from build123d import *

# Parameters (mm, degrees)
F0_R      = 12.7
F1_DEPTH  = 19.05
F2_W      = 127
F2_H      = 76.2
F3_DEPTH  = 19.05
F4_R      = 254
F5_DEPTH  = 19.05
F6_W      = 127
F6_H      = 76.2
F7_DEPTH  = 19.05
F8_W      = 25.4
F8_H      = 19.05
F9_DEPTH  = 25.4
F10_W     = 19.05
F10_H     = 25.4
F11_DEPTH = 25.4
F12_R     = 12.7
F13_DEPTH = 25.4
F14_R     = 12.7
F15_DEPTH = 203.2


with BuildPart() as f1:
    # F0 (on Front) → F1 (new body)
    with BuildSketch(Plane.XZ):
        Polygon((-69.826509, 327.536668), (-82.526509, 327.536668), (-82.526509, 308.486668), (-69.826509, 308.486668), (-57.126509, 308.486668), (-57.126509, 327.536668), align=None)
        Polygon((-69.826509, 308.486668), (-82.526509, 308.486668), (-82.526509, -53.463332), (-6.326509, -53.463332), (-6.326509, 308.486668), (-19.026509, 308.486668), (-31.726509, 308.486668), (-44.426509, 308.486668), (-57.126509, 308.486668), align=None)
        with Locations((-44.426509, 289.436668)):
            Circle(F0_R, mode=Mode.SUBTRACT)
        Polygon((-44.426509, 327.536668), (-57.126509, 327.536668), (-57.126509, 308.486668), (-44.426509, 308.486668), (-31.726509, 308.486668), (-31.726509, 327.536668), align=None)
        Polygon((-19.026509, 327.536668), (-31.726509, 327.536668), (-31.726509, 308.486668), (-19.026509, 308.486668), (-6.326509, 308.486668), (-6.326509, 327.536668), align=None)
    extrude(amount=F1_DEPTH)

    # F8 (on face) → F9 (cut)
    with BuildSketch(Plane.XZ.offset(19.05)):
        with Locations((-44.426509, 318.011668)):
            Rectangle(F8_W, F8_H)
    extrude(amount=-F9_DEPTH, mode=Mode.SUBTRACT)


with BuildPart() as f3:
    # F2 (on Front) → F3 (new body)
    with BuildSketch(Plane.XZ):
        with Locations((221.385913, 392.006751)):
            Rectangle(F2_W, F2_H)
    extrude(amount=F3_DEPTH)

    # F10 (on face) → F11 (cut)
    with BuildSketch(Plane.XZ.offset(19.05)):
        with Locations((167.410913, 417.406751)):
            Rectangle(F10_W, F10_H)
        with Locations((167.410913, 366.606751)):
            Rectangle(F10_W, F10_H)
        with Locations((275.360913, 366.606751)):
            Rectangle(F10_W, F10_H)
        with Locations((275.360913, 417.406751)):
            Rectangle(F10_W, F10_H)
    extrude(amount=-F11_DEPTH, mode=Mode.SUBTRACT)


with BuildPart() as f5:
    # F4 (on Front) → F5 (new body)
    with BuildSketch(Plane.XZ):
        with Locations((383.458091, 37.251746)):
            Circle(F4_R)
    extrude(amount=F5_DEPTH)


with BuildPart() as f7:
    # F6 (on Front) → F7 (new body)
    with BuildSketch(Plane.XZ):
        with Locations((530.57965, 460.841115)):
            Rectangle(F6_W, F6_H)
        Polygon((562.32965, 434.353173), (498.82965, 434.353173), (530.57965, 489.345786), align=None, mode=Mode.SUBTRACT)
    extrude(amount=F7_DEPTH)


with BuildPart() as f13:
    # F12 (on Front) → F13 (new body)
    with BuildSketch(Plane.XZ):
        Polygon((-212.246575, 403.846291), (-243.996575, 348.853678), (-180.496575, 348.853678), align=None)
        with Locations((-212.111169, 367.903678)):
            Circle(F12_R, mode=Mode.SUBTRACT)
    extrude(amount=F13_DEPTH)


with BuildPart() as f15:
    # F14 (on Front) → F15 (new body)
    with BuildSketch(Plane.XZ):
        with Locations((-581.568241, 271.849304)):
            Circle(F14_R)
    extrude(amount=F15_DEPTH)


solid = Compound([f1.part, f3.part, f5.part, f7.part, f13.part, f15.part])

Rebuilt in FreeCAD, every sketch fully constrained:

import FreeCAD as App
import Part
import Sketcher

V = App.Vector
Q = App.Units.Quantity


def add_polygon(sketch, points):
    """Adds a closed chain of lines whose ends are joined by coincident constraints."""
    first, n = sketch.GeometryCount, len(points)
    for a, b in zip(points, points[1:] + points[:1]):
        sketch.addGeometry(Part.LineSegment(App.Vector(*a, 0), App.Vector(*b, 0)), False)
    for i in range(n):
        sketch.addConstraint(Sketcher.Constraint("Coincident", first + i, 2, first + (i + 1) % n, 1))

doc = App.newDocument("Part")
body = doc.addObject("PartDesign::Body", "Body")

sketch1 = body.newObject("Sketcher::SketchObject", "Sketch")
sketch1.AttachmentSupport = (doc.getObject("XZ_Plane"), [""])
sketch1.MapMode = "FlatFace"
add_polygon(sketch1, [(-83, 328), (-83, -53), (-6, -53), (-6, 328)])
sketch1.addGeometry(Part.Circle(V(-44, 289, 0), V(0, 0, 1), 13), False)
sketch1.addConstraint(Sketcher.Constraint("Vertical", 0))
sketch1.addConstraint(Sketcher.Constraint("Horizontal", 1))
sketch1.addConstraint(Sketcher.Constraint("Vertical", 2))
sketch1.addConstraint(Sketcher.Constraint("Horizontal", 3))
sketch1.addConstraint(Sketcher.Constraint("Diameter", 4, Q("1 in")))
sketch1.addConstraint(Sketcher.Constraint("DistanceX", 1, 1, 1, 2, Q("3 in")))
sketch1.addConstraint(Sketcher.Constraint("DistanceY", 0, 2, 0, 1, Q("15 in")))
sketch1.addConstraint(Sketcher.Constraint("DistanceX", 0, 2, 4, 3, Q("1.5 in")))
sketch1.addConstraint(Sketcher.Constraint("DistanceY", 0, 2, 4, 3, Q("13.5 in")))
sketch1.addConstraint(Sketcher.Constraint("DistanceX", 4, 3, -1, 1, 44.426509))
sketch1.addConstraint(Sketcher.Constraint("DistanceY", -1, 1, 4, 3, 289.436668))
pad1 = body.newObject("PartDesign::Pad", "Pad")
pad1.Profile = sketch1
pad1.Length = Q("0.75 in")

sketch2 = body.newObject("Sketcher::SketchObject", "Sketch001")
sketch2.AttachmentSupport = (doc.getObject("XZ_Plane"), [""])
sketch2.MapMode = "FlatFace"
sketch2.AttachmentOffset = App.Placement(V(0, 0, 0.75 * 25.4), App.Rotation())
add_polygon(sketch2, [(-57, 328), (-57, 308), (-32, 308), (-32, 328)])
sketch2.addConstraint(Sketcher.Constraint("Vertical", 0))
sketch2.addConstraint(Sketcher.Constraint("Horizontal", 1))
sketch2.addConstraint(Sketcher.Constraint("Vertical", 2))
sketch2.addConstraint(Sketcher.Constraint("Horizontal", 3))
sketch2.addConstraint(Sketcher.Constraint("DistanceX", 1, 1, 1, 2, Q("1 in")))
sketch2.addConstraint(Sketcher.Constraint("DistanceY", 0, 2, 0, 1, Q("0.75 in")))
sketch2.addConstraint(Sketcher.Constraint("DistanceX", 0, 2, -1, 1, 57.126509))
sketch2.addConstraint(Sketcher.Constraint("DistanceY", -1, 1, 0, 2, 308.486668))
pocket1 = body.newObject("PartDesign::Pocket", "Pocket")
pocket1.Profile = sketch2
pocket1.Length = Q("1 in")
body2 = doc.addObject("PartDesign::Body", "Body001")

sketch3 = body2.newObject("Sketcher::SketchObject", "Sketch002")
sketch3.AttachmentSupport = (doc.getObject("XZ_Plane001"), [""])
sketch3.MapMode = "FlatFace"
add_polygon(sketch3, [(158, 430), (158, 354), (285, 354), (285, 430)])
sketch3.addConstraint(Sketcher.Constraint("Vertical", 0))
sketch3.addConstraint(Sketcher.Constraint("Horizontal", 1))
sketch3.addConstraint(Sketcher.Constraint("Vertical", 2))
sketch3.addConstraint(Sketcher.Constraint("Horizontal", 3))
sketch3.addConstraint(Sketcher.Constraint("DistanceX", 1, 1, 1, 2, Q("5 in")))
sketch3.addConstraint(Sketcher.Constraint("DistanceY", 0, 2, 0, 1, Q("3 in")))
sketch3.addConstraint(Sketcher.Constraint("DistanceY", -1, 1, 0, 2, 353.906751))
sketch3.addConstraint(Sketcher.Constraint("DistanceX", -1, 1, 0, 2, 157.885913))
pad2 = body2.newObject("PartDesign::Pad", "Pad001")
pad2.Profile = sketch3
pad2.Length = Q("0.75 in")

sketch4 = body2.newObject("Sketcher::SketchObject", "Sketch003")
sketch4.AttachmentSupport = (doc.getObject("XZ_Plane001"), [""])
sketch4.MapMode = "FlatFace"
sketch4.AttachmentOffset = App.Placement(V(0, 0, 0.75 * 25.4), App.Rotation())
add_polygon(sketch4, [(158, 430), (158, 405), (177, 405), (177, 430)])
add_polygon(sketch4, [(158, 379), (158, 354), (177, 354), (177, 379)])
add_polygon(sketch4, [(266, 379), (266, 354), (285, 354), (285, 379)])
add_polygon(sketch4, [(266, 430), (266, 405), (285, 405), (285, 430)])
sketch4.addConstraint(Sketcher.Constraint("Vertical", 0))
sketch4.addConstraint(Sketcher.Constraint("Horizontal", 1))
sketch4.addConstraint(Sketcher.Constraint("Vertical", 2))
sketch4.addConstraint(Sketcher.Constraint("Horizontal", 3))
sketch4.addConstraint(Sketcher.Constraint("Vertical", 4))
sketch4.addConstraint(Sketcher.Constraint("Horizontal", 5))
sketch4.addConstraint(Sketcher.Constraint("Vertical", 6))
sketch4.addConstraint(Sketcher.Constraint("Horizontal", 7))
sketch4.addConstraint(Sketcher.Constraint("Vertical", 8))
sketch4.addConstraint(Sketcher.Constraint("Horizontal", 9))
sketch4.addConstraint(Sketcher.Constraint("Vertical", 10))
sketch4.addConstraint(Sketcher.Constraint("Horizontal", 11))
sketch4.addConstraint(Sketcher.Constraint("Vertical", 12))
sketch4.addConstraint(Sketcher.Constraint("Horizontal", 13))
sketch4.addConstraint(Sketcher.Constraint("Vertical", 14))
sketch4.addConstraint(Sketcher.Constraint("Horizontal", 15))
sketch4.addConstraint(Sketcher.Constraint("Horizontal", 5, 2, 8, 2))
sketch4.addConstraint(Sketcher.Constraint("Horizontal", 7, 2, 10, 2))
sketch4.addConstraint(Sketcher.Constraint("Horizontal", 1, 2, 12, 2))
sketch4.addConstraint(Sketcher.Constraint("Horizontal", 3, 2, 14, 2))
sketch4.addConstraint(Sketcher.Constraint("Vertical", 3, 2, 4, 2))
sketch4.addConstraint(Sketcher.Constraint("Vertical", 2, 2, 5, 2))
sketch4.addConstraint(Sketcher.Constraint("Vertical", 11, 2, 12, 2))
sketch4.addConstraint(Sketcher.Constraint("Vertical", 10, 2, 13, 2))
sketch4.addConstraint(Sketcher.Constraint("Equal", 7, 9))
sketch4.addConstraint(Sketcher.Constraint("Equal", 2, 4))
sketch4.addConstraint(Sketcher.Constraint("DistanceY", 0, 2, 0, 1, Q("1 in")))
sketch4.addConstraint(Sketcher.Constraint("DistanceY", 4, 2, 0, 2, Q("2 in")))
sketch4.addConstraint(Sketcher.Constraint("DistanceX", 4, 2, 9, 2, Q("5 in")))
sketch4.addConstraint(Sketcher.Constraint("DistanceX", 1, 1, 1, 2, Q("0.75 in")))
sketch4.addConstraint(Sketcher.Constraint("DistanceY", -1, 1, 0, 2, 404.706751))
sketch4.addConstraint(Sketcher.Constraint("DistanceX", -1, 1, 0, 2, 157.885913))
pocket2 = body2.newObject("PartDesign::Pocket", "Pocket001")
pocket2.Profile = sketch4
pocket2.Length = Q("1 in")
body3 = doc.addObject("PartDesign::Body", "Body002")

sketch5 = body3.newObject("Sketcher::SketchObject", "Sketch004")
sketch5.AttachmentSupport = (doc.getObject("XZ_Plane002"), [""])
sketch5.MapMode = "FlatFace"
sketch5.addGeometry(Part.Circle(V(383, 37, 0), V(0, 0, 1), 254), False)
sketch5.addConstraint(Sketcher.Constraint("Diameter", 0, Q("20 in")))
sketch5.addConstraint(Sketcher.Constraint("DistanceX", -1, 1, 0, 3, 383.458091))
sketch5.addConstraint(Sketcher.Constraint("DistanceY", -1, 1, 0, 3, 37.251746))
pad3 = body3.newObject("PartDesign::Pad", "Pad002")
pad3.Profile = sketch5
pad3.Length = Q("0.75 in")
body4 = doc.addObject("PartDesign::Body", "Body003")

sketch6 = body4.newObject("Sketcher::SketchObject", "Sketch005")
sketch6.AttachmentSupport = (doc.getObject("XZ_Plane003"), [""])
sketch6.MapMode = "FlatFace"
add_polygon(sketch6, [(467, 499), (467, 423), (594, 423), (594, 499)])
add_polygon(sketch6, [(531, 489), (562, 434), (499, 434)])
sketch6.addConstraint(Sketcher.Constraint("Vertical", 0))
sketch6.addConstraint(Sketcher.Constraint("Horizontal", 1))
sketch6.addConstraint(Sketcher.Constraint("Vertical", 2))
sketch6.addConstraint(Sketcher.Constraint("Horizontal", 3))
sketch6.addConstraint(Sketcher.Constraint("Horizontal", 5))
sketch6.addConstraint(Sketcher.Constraint("Equal", 4, 6))
sketch6.addConstraint(Sketcher.Constraint("DistanceX", 1, 1, 1, 2, Q("5 in")))
sketch6.addConstraint(Sketcher.Constraint("DistanceY", 0, 2, 0, 1, Q("3 in")))
sketch6.addConstraint(Sketcher.Constraint("DistanceX", 5, 2, 5, 1, Q("2.5 in")))
sketch6.addConstraint(Sketcher.Constraint("Angle", 4, Q("-60 deg")))
sketch6.addConstraint(Sketcher.Constraint("DistanceX", 6, 2, 2, 2, Q("2.5 in")))
sketch6.addConstraint(Sketcher.Constraint("DistanceX", -1, 1, 0, 2, 467.07965))
sketch6.addConstraint(Sketcher.Constraint("DistanceY", 1, 2, 4, 2, 11.612058))
sketch6.addConstraint(Sketcher.Constraint("DistanceY", -1, 1, 0, 2, 422.741115))
pad4 = body4.newObject("PartDesign::Pad", "Pad003")
pad4.Profile = sketch6
pad4.Length = Q("0.75 in")
body5 = doc.addObject("PartDesign::Body", "Body004")

sketch7 = body5.newObject("Sketcher::SketchObject", "Sketch006")
sketch7.AttachmentSupport = (doc.getObject("XZ_Plane004"), [""])
sketch7.MapMode = "FlatFace"
add_polygon(sketch7, [(-212, 404), (-244, 349), (-180, 349)])
sketch7.addGeometry(Part.Circle(V(-212, 368, 0), V(0, 0, 1), 13), False)
sketch7.addConstraint(Sketcher.Constraint("Horizontal", 1))
sketch7.addConstraint(Sketcher.Constraint("Equal", 0, 2))
sketch7.addConstraint(Sketcher.Constraint("Diameter", 3, Q("1 in")))
sketch7.addConstraint(Sketcher.Constraint("DistanceX", 1, 1, 1, 2, Q("2.5 in")))
sketch7.addConstraint(Sketcher.Constraint("Angle", 0, Q("-120 deg")))
sketch7.addConstraint(Sketcher.Constraint("DistanceY", 0, 2, 3, 3, Q("0.75 in")))
sketch7.addConstraint(Sketcher.Constraint("DistanceX", 3, 3, -1, 1, 212.111169))
sketch7.addConstraint(Sketcher.Constraint("DistanceY", -1, 1, 3, 3, 367.903678))
sketch7.addConstraint(Sketcher.Constraint("DistanceX", 0, 2, -1, 1, 243.996575))
pad5 = body5.newObject("PartDesign::Pad", "Pad004")
pad5.Profile = sketch7
pad5.Length = Q("1 in")
body6 = doc.addObject("PartDesign::Body", "Body005")

sketch8 = body6.newObject("Sketcher::SketchObject", "Sketch007")
sketch8.AttachmentSupport = (doc.getObject("XZ_Plane005"), [""])
sketch8.MapMode = "FlatFace"
sketch8.addGeometry(Part.Circle(V(-582, 272, 0), V(0, 0, 1), 13), False)
sketch8.addConstraint(Sketcher.Constraint("Diameter", 0, Q("1 in")))
sketch8.addConstraint(Sketcher.Constraint("DistanceX", 0, 3, -1, 1, 581.568241))
sketch8.addConstraint(Sketcher.Constraint("DistanceY", -1, 1, 0, 3, 271.849304))
pad6 = body6.newObject("PartDesign::Pad", "Pad005")
pad6.Profile = sketch8
pad6.Length = Q("8 in")

doc.recompute()
